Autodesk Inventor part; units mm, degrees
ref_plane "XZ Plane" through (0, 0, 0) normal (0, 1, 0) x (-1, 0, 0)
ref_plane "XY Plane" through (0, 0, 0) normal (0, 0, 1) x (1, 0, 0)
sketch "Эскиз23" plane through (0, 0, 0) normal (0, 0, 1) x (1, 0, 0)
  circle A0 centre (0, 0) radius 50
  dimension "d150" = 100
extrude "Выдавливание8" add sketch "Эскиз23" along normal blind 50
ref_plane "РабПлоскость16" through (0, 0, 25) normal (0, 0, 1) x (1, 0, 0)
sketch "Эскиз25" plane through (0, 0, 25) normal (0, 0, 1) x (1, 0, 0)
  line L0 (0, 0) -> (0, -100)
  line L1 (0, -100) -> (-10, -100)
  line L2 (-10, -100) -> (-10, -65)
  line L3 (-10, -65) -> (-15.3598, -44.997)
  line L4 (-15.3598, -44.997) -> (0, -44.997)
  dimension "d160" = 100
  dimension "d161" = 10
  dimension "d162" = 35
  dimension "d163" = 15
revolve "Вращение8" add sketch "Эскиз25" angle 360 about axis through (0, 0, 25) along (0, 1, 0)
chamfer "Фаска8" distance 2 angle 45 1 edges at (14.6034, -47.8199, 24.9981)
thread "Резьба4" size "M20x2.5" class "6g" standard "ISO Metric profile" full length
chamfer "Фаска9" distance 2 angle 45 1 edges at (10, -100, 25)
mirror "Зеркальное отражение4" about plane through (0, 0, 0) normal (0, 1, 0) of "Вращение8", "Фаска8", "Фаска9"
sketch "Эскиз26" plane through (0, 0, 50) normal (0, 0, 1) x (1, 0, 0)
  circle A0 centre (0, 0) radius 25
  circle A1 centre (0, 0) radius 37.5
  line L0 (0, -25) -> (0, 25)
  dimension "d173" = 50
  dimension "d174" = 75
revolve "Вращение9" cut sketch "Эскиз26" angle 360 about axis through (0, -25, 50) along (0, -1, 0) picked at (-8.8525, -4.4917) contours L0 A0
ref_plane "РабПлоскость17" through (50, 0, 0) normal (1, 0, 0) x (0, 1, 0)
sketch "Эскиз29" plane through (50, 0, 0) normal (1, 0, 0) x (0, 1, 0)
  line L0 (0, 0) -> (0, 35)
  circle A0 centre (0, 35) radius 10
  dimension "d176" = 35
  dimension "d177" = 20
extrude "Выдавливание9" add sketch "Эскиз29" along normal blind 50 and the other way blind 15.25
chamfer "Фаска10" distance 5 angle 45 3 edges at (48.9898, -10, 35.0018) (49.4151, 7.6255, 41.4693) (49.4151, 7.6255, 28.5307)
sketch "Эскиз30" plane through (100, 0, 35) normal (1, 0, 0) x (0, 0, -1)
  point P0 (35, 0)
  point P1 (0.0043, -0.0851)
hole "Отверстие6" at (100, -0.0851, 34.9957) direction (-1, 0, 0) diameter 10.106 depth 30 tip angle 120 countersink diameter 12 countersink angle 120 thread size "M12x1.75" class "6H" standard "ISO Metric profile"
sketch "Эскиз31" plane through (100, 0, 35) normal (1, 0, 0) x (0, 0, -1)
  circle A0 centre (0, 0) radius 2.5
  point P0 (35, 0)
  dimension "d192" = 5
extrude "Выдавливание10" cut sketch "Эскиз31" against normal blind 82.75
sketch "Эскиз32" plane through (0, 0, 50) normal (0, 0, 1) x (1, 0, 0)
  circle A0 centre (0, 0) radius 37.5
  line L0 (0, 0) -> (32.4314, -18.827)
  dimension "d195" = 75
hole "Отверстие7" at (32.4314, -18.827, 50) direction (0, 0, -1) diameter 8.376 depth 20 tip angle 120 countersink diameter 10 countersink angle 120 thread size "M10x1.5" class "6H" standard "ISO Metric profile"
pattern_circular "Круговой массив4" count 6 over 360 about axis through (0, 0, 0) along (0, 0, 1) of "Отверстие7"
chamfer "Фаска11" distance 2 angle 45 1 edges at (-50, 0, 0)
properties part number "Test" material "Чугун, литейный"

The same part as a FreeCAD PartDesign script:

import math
import FreeCAD as App
import Part
import Sketcher
from FreeCAD import Vector
Q = App.Units.Quantity


def edges_at(feature, points):
    """Names of the edges that pass closest to the given points."""
    edges = feature.Shape.Edges
    near = lambda p: min(range(len(edges)), key=lambda i: edges[i].distToShape(Part.Vertex(*p))[0])
    return sorted({f"Edge{near(p) + 1}" for p in points})


def add_polygon(sketch, points):
    """Adds a closed chain of lines whose ends are joined by coincident constraints."""
    first, n = sketch.GeometryCount, len(points)
    for a, b in zip(points, points[1:] + points[:1]):
        sketch.addGeometry(Part.LineSegment(App.Vector(*a, 0), App.Vector(*b, 0)), False)
    for i in range(n):
        sketch.addConstraint(Sketcher.Constraint("Coincident", first + i, 2, first + (i + 1) % n, 1))

doc = App.newDocument("Part")
body = doc.addObject("PartDesign::Body", "Body")

sketch1 = body.newObject("Sketcher::SketchObject", "Sketch")
sketch1.AttachmentSupport = (doc.getObject("XY_Plane"), [""])
sketch1.MapMode = "FlatFace"
sketch1.addGeometry(Part.Circle(Vector(0, 0, 0), Vector(0, 0, 1), 50), False)
sketch1.addConstraint([
    Sketcher.Constraint("Coincident", 0, 3, -1, 1),
    Sketcher.Constraint("Diameter", 0, Q("100 mm")),
])
pad1 = body.newObject("PartDesign::Pad", "Pad")
pad1.Profile = sketch1
pad1.Length = 50

sketch2 = body.newObject("Sketcher::SketchObject", "Sketch001")
sketch2.AttachmentSupport = (doc.getObject("XY_Plane"), [""])
sketch2.MapMode = "FlatFace"
sketch2.AttachmentOffset = App.Placement(Vector(0, 0, 25), App.Rotation())
add_polygon(sketch2, [(0, -100), (0, -45), (-15, -45), (-10, -65), (-10, -100)])
sketch2.addConstraint([
    Sketcher.Constraint("Vertical", 0),
    Sketcher.Constraint("Horizontal", 1),
    Sketcher.Constraint("Vertical", 3),
    Sketcher.Constraint("Horizontal", 4),
    Sketcher.Constraint("PointOnObject", 0, 2, -2),
    Sketcher.Constraint("DistanceX", 4, 1, 4, 2, Q("10 mm")),
    Sketcher.Constraint("DistanceY", 3, 2, 3, 1, Q("35 mm")),
    Sketcher.Constraint("DistanceY", 3, 2, -1, 1, Q("100 mm")),
    Sketcher.Constraint("Angle", 2, Q("-75 deg")),
    Sketcher.Constraint("DistanceY", 0, 1, 0, 2, Q("55.003 mm")),
])
revolution = body.newObject("PartDesign::Revolution", "Revolution")
revolution.Profile = sketch2
revolution.ReferenceAxis = (sketch2, ["V_Axis"])
revolution.Angle = 360
doc.recompute()

chamfer = body.newObject("PartDesign::Chamfer", "Chamfer")
chamfer.Base = (revolution, edges_at(revolution, [(14.603, -47.82, 24.998)]))
chamfer.Size = 2
doc.recompute()

chamfer2 = body.newObject("PartDesign::Chamfer", "Chamfer001")
chamfer2.Base = (chamfer, edges_at(chamfer, [(10, -100, 25)]))
chamfer2.Size = 2
doc.recompute()

mirrored = body.newObject("PartDesign::Mirrored", "Mirrored")
mirrored.Originals = [revolution, chamfer, chamfer2]
mirrored.MirrorPlane = (doc.getObject("XZ_Plane"), [""])
body.Tip = mirrored

sketch3 = body.newObject("Sketcher::SketchObject", "Sketch002")
sketch3.AttachmentSupport = (doc.getObject("XY_Plane"), [""])
sketch3.MapMode = "FlatFace"
sketch3.AttachmentOffset = App.Placement(Vector(0, 0, 50), App.Rotation())
sketch3.addGeometry([
    Part.LineSegment(Vector(0, -25, 0), Vector(0, 25, 0)),
    Part.ArcOfCircle(Part.Circle(Vector(0, 0, 0), Vector(0, 0, 1), 25), math.radians(90), math.radians(270)),
], False)
sketch3.addConstraint([
    Sketcher.Constraint("Coincident", 0, 1, 1, 2),
    Sketcher.Constraint("Coincident", 1, 1, 0, 2),
    Sketcher.Constraint("Vertical", 0),
    Sketcher.Constraint("Coincident", 1, 3, -1, 1),
    Sketcher.Constraint("PointOnObject", 0, 1, -2),
    Sketcher.Constraint("Radius", 1, Q("25 mm")),
])
groove = body.newObject("PartDesign::Groove", "Groove")
groove.Profile = sketch3
groove.ReferenceAxis = (sketch3, ["V_Axis"])
groove.Angle = 360

sketch4 = body.newObject("Sketcher::SketchObject", "Sketch003")
sketch4.AttachmentSupport = (doc.getObject("YZ_Plane"), [""])
sketch4.MapMode = "FlatFace"
sketch4.AttachmentOffset = App.Placement(Vector(0, 0, 50), App.Rotation())
sketch4.addGeometry(Part.Circle(Vector(0, 35, 0), Vector(0, 0, 1), 10), False)
sketch4.addConstraint([
    Sketcher.Constraint("PointOnObject", 0, 3, -2),
    Sketcher.Constraint("Diameter", 0, Q("20 mm")),
    Sketcher.Constraint("DistanceY", -1, 1, 0, 3, Q("35 mm")),
])
pad2 = body.newObject("PartDesign::Pad", "Pad001")
pad2.Profile = sketch4
pad2.Type = "TwoLengths"
pad2.Length = 50
pad2.Length2 = 15.25
doc.recompute()

chamfer3 = body.newObject("PartDesign::Chamfer", "Chamfer002")
chamfer3.Base = (pad2, edges_at(pad2, [(48.99, -10, 35.002), (49.415, 7.625, 41.469), (49.415, 7.625, 28.531)]))
chamfer3.Size = 5

sketch5 = body.newObject("Sketcher::SketchObject", "Sketch004")
sketch5.AttachmentSupport = (doc.getObject("YZ_Plane"), [""])
sketch5.MapMode = "FlatFace"
sketch5.AttachmentOffset = App.Placement(Vector(0, 0, 100), App.Rotation())
sketch5.addGeometry(Part.Circle(Vector(0, 35, 0), Vector(0, 0, 1), 5), False)
sketch5.addConstraint([
    Sketcher.Constraint("Diameter", 0, Q("10.106 mm")),
    Sketcher.Constraint("DistanceX", 0, 3, -1, 1, Q("0.085 mm")),
    Sketcher.Constraint("DistanceY", -1, 1, 0, 3, Q("34.9957 mm")),
])
doc.recompute()
hole = body.newObject("PartDesign::Hole", "Hole")
hole.Profile = sketch5
hole.ThreadType = "None"
hole.Diameter = 10.106
hole.DepthType = "Dimension"
hole.Depth = 30
hole.DrillPoint = "Angled"
hole.DrillPointAngle = 120
hole.HoleCutType = "Countersink"
hole.HoleCutDiameter = 12
hole.HoleCutCountersinkAngle = 120

sketch6 = body.newObject("Sketcher::SketchObject", "Sketch005")
sketch6.AttachmentSupport = (doc.getObject("YZ_Plane"), [""])
sketch6.MapMode = "FlatFace"
sketch6.AttachmentOffset = App.Placement(Vector(0, 0, 100), App.Rotation())
sketch6.addGeometry(Part.Circle(Vector(0, 35, 0), Vector(0, 0, 1), 2.5), False)
sketch6.addConstraint([
    Sketcher.Constraint("PointOnObject", 0, 3, -2),
    Sketcher.Constraint("Diameter", 0, Q("5 mm")),
    Sketcher.Constraint("DistanceY", -1, 1, 0, 3, Q("35 mm")),
])
pocket1 = body.newObject("PartDesign::Pocket", "Pocket")
pocket1.Profile = sketch6
pocket1.Length = 82.75

sketch7 = body.newObject("Sketcher::SketchObject", "Sketch006")
sketch7.AttachmentSupport = (doc.getObject("XY_Plane"), [""])
sketch7.MapMode = "FlatFace"
sketch7.AttachmentOffset = App.Placement(Vector(0, 0, 50), App.Rotation())
sketch7.addGeometry(Part.Circle(Vector(32.4, -18.8, 0), Vector(0, 0, 1), 4.2), False)
sketch7.addConstraint([
    Sketcher.Constraint("Diameter", 0, Q("8.376 mm")),
    Sketcher.Constraint("DistanceY", 0, 3, -1, 1, Q("18.827 mm")),
    Sketcher.Constraint("DistanceX", -1, 1, 0, 3, Q("32.4314 mm")),
])
doc.recompute()
hole2 = body.newObject("PartDesign::Hole", "Hole001")
hole2.Profile = sketch7
hole2.ThreadType = "None"
hole2.Diameter = 8.376
hole2.DepthType = "Dimension"
hole2.Depth = 20
hole2.DrillPoint = "Angled"
hole2.DrillPointAngle = 120
hole2.HoleCutType = "Countersink"
hole2.HoleCutDiameter = 10
hole2.HoleCutCountersinkAngle = 120
doc.recompute()

polarpattern = body.newObject("PartDesign::PolarPattern", "PolarPattern")
polarpattern.Originals = [hole2]
polarpattern.Axis = (doc.getObject("Z_Axis"), [""])
polarpattern.Angle = 360
polarpattern.Occurrences = 6
body.Tip = polarpattern
doc.recompute()

chamfer4 = body.newObject("PartDesign::Chamfer", "Chamfer003")
chamfer4.Base = (polarpattern, edges_at(polarpattern, [(-50, 0, 0)]))
chamfer4.Size = 2

doc.recompute()
